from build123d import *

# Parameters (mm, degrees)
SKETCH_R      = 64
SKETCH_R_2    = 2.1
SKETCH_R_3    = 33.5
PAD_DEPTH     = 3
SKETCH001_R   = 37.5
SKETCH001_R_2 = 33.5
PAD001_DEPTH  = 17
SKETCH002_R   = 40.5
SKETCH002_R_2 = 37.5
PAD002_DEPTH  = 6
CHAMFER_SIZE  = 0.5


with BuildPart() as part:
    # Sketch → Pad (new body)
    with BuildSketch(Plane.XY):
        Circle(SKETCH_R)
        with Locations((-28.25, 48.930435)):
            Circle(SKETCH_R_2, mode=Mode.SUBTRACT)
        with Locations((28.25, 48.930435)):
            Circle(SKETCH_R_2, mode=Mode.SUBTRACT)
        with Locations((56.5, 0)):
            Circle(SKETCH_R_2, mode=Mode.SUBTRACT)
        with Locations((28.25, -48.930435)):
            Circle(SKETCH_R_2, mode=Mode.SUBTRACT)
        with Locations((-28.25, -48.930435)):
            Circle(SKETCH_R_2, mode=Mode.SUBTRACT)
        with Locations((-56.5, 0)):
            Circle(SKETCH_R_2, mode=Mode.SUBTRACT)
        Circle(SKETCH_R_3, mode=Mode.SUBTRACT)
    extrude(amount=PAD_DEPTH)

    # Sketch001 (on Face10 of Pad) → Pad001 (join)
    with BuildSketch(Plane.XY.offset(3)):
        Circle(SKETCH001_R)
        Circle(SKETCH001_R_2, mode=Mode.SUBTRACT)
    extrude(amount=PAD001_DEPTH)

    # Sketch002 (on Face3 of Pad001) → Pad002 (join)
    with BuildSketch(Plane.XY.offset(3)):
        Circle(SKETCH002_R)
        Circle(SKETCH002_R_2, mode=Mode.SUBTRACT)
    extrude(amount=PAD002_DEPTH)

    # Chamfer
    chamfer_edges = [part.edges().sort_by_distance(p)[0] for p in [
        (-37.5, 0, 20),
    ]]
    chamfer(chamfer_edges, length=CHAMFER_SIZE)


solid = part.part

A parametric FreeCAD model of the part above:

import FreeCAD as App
import Part
import Sketcher


def edges_at(feature, points):
    """Names of the edges that pass closest to the given points."""
    edges = feature.Shape.Edges
    near = lambda p: min(range(len(edges)), key=lambda i: edges[i].distToShape(Part.Vertex(*p))[0])
    return sorted({f"Edge{near(p) + 1}" for p in points})

doc = App.newDocument("Part")
params = doc.addObject("Spreadsheet::Sheet", "Params")
for row, (alias, value) in enumerate([
    ("sketch1_diameter", "128 mm"),
    ("sketch1_diameter2", "67 mm"),
    ("sketch1_diameter3", "4.2 mm"),
    ("pad1_length", "3 mm"),
    ("sketch2_diameter", "75 mm"),
    ("sketch2_diameter2", "67 mm"),
    ("pad2_length", "17 mm"),
    ("sketch3_diameter", "81 mm"),
    ("sketch3_diameter2", "75 mm"),
    ("pad3_length", "6 mm"),
    ("chamfer_size", "0.5 mm"),
], start=1):
    params.set(f"A{row}", alias)
    params.set(f"B{row}", "=" + value)
    params.setAlias(f"B{row}", alias)

body = doc.addObject("PartDesign::Body", "Body")

# Sketch on XY plane
sketch1 = body.newObject("Sketcher::SketchObject", "Sketch")
sketch1.AttachmentSupport = (doc.getObject("XY_Plane"), [""])
sketch1.MapMode = "FlatFace"
sketch1.addGeometry([
    Part.Circle(App.Vector(0, 0, 0), App.Vector(0, 0, 1), 64),  # 0
    Part.Circle(App.Vector(-28.2, -48.9, 0), App.Vector(0, 0, 1), 2.1),  # 1
    Part.Circle(App.Vector(28.2, -48.9, 0), App.Vector(0, 0, 1), 2.1),  # 2
    Part.Circle(App.Vector(-56.5, 0, 0), App.Vector(0, 0, 1), 2.1),  # 3
    Part.Circle(App.Vector(-28.2, 48.9, 0), App.Vector(0, 0, 1), 2.1),  # 4
    Part.Circle(App.Vector(0, 0, 0), App.Vector(0, 0, 1), 33.5),  # 5
    Part.Circle(App.Vector(56.5, 0, 0), App.Vector(0, 0, 1), 2.1),  # 6
    Part.Circle(App.Vector(28.2, 48.9, 0), App.Vector(0, 0, 1), 2.1),  # 7
], False)
sketch1.addConstraint([
    Sketcher.Constraint("Coincident", 0, 3, -1, 1),
    Sketcher.Constraint("Coincident", 5, 3, -1, 1),
    Sketcher.Constraint("Equal", 1, 2),
    Sketcher.Constraint("Equal", 2, 3),
    Sketcher.Constraint("Equal", 3, 4),
    Sketcher.Constraint("Equal", 4, 6),
    Sketcher.Constraint("Equal", 6, 7),
    Sketcher.Constraint("Symmetric", 2, 3, 4, 3, -1, 1),
    Sketcher.Constraint("Symmetric", 3, 3, 6, 3, -1, 1),
    Sketcher.Constraint("Symmetric", 1, 3, 7, 3, -1, 1),
    Sketcher.Constraint("Symmetric", 1, 3, 2, 3, -2),
    Sketcher.Constraint("PointOnObject", 3, 3, -1),
    Sketcher.Constraint("Diameter", 0, 128.0),
    Sketcher.Constraint("Diameter", 5, 67.0),
    Sketcher.Constraint("Diameter", 1, 4.2),
    Sketcher.Constraint("DistanceX", 3, 3, -1, 1, 56.5),
    Sketcher.Constraint("DistanceX", 1, 3, 2, 3, 56.5),
    Sketcher.Constraint("DistanceY", 1, 3, 4, 3, 97.86087),
])
sketch1.setExpression("Constraints[12]", "Params.sketch1_diameter")
sketch1.setExpression("Constraints[13]", "Params.sketch1_diameter2")
sketch1.setExpression("Constraints[14]", "Params.sketch1_diameter3")
pad1 = body.newObject("PartDesign::Pad", "Pad")
pad1.Profile = sketch1
pad1.setExpression("Length", "Params.pad1_length")

# Sketch on XY plane
sketch2 = body.newObject("Sketcher::SketchObject", "Sketch001")
sketch2.AttachmentSupport = (doc.getObject("XY_Plane"), [""])
sketch2.MapMode = "FlatFace"
sketch2.AttachmentOffset = App.Placement(App.Vector(0, 0, 3), App.Rotation())
sketch2.addGeometry([
    Part.Circle(App.Vector(0, 0, 0), App.Vector(0, 0, 1), 38),
    Part.Circle(App.Vector(0, 0, 0), App.Vector(0, 0, 1), 34),
], False)
sketch2.addConstraint([
    Sketcher.Constraint("Coincident", 0, 3, -1, 1),
    Sketcher.Constraint("Coincident", 1, 3, -1, 1),
    Sketcher.Constraint("Diameter", 0, 75.0),
    Sketcher.Constraint("Diameter", 1, 67.0),
])
sketch2.setExpression("Constraints[2]", "Params.sketch2_diameter")
sketch2.setExpression("Constraints[3]", "Params.sketch2_diameter2")
pad2 = body.newObject("PartDesign::Pad", "Pad001")
pad2.Profile = sketch2
pad2.setExpression("Length", "Params.pad2_length")

# Sketch on XY plane
sketch3 = body.newObject("Sketcher::SketchObject", "Sketch002")
sketch3.AttachmentSupport = (doc.getObject("XY_Plane"), [""])
sketch3.MapMode = "FlatFace"
sketch3.AttachmentOffset = App.Placement(App.Vector(0, 0, 3), App.Rotation())
sketch3.addGeometry([
    Part.Circle(App.Vector(0, 0, 0), App.Vector(0, 0, 1), 40),
    Part.Circle(App.Vector(0, 0, 0), App.Vector(0, 0, 1), 38),
], False)
sketch3.addConstraint([
    Sketcher.Constraint("Coincident", 0, 3, -1, 1),
    Sketcher.Constraint("Coincident", 1, 3, -1, 1),
    Sketcher.Constraint("Diameter", 0, 81.0),
    Sketcher.Constraint("Diameter", 1, 75.0),
])
sketch3.setExpression("Constraints[2]", "Params.sketch3_diameter")
sketch3.setExpression("Constraints[3]", "Params.sketch3_diameter2")
pad3 = body.newObject("PartDesign::Pad", "Pad002")
pad3.Profile = sketch3
pad3.setExpression("Length", "Params.pad3_length")
doc.recompute()

chamfer = body.newObject("PartDesign::Chamfer", "Chamfer")
chamfer.Base = (pad3, edges_at(pad3, [(-37.5, 0, 20)]))
chamfer.setExpression("Size", "Params.chamfer_size")

doc.recompute()
